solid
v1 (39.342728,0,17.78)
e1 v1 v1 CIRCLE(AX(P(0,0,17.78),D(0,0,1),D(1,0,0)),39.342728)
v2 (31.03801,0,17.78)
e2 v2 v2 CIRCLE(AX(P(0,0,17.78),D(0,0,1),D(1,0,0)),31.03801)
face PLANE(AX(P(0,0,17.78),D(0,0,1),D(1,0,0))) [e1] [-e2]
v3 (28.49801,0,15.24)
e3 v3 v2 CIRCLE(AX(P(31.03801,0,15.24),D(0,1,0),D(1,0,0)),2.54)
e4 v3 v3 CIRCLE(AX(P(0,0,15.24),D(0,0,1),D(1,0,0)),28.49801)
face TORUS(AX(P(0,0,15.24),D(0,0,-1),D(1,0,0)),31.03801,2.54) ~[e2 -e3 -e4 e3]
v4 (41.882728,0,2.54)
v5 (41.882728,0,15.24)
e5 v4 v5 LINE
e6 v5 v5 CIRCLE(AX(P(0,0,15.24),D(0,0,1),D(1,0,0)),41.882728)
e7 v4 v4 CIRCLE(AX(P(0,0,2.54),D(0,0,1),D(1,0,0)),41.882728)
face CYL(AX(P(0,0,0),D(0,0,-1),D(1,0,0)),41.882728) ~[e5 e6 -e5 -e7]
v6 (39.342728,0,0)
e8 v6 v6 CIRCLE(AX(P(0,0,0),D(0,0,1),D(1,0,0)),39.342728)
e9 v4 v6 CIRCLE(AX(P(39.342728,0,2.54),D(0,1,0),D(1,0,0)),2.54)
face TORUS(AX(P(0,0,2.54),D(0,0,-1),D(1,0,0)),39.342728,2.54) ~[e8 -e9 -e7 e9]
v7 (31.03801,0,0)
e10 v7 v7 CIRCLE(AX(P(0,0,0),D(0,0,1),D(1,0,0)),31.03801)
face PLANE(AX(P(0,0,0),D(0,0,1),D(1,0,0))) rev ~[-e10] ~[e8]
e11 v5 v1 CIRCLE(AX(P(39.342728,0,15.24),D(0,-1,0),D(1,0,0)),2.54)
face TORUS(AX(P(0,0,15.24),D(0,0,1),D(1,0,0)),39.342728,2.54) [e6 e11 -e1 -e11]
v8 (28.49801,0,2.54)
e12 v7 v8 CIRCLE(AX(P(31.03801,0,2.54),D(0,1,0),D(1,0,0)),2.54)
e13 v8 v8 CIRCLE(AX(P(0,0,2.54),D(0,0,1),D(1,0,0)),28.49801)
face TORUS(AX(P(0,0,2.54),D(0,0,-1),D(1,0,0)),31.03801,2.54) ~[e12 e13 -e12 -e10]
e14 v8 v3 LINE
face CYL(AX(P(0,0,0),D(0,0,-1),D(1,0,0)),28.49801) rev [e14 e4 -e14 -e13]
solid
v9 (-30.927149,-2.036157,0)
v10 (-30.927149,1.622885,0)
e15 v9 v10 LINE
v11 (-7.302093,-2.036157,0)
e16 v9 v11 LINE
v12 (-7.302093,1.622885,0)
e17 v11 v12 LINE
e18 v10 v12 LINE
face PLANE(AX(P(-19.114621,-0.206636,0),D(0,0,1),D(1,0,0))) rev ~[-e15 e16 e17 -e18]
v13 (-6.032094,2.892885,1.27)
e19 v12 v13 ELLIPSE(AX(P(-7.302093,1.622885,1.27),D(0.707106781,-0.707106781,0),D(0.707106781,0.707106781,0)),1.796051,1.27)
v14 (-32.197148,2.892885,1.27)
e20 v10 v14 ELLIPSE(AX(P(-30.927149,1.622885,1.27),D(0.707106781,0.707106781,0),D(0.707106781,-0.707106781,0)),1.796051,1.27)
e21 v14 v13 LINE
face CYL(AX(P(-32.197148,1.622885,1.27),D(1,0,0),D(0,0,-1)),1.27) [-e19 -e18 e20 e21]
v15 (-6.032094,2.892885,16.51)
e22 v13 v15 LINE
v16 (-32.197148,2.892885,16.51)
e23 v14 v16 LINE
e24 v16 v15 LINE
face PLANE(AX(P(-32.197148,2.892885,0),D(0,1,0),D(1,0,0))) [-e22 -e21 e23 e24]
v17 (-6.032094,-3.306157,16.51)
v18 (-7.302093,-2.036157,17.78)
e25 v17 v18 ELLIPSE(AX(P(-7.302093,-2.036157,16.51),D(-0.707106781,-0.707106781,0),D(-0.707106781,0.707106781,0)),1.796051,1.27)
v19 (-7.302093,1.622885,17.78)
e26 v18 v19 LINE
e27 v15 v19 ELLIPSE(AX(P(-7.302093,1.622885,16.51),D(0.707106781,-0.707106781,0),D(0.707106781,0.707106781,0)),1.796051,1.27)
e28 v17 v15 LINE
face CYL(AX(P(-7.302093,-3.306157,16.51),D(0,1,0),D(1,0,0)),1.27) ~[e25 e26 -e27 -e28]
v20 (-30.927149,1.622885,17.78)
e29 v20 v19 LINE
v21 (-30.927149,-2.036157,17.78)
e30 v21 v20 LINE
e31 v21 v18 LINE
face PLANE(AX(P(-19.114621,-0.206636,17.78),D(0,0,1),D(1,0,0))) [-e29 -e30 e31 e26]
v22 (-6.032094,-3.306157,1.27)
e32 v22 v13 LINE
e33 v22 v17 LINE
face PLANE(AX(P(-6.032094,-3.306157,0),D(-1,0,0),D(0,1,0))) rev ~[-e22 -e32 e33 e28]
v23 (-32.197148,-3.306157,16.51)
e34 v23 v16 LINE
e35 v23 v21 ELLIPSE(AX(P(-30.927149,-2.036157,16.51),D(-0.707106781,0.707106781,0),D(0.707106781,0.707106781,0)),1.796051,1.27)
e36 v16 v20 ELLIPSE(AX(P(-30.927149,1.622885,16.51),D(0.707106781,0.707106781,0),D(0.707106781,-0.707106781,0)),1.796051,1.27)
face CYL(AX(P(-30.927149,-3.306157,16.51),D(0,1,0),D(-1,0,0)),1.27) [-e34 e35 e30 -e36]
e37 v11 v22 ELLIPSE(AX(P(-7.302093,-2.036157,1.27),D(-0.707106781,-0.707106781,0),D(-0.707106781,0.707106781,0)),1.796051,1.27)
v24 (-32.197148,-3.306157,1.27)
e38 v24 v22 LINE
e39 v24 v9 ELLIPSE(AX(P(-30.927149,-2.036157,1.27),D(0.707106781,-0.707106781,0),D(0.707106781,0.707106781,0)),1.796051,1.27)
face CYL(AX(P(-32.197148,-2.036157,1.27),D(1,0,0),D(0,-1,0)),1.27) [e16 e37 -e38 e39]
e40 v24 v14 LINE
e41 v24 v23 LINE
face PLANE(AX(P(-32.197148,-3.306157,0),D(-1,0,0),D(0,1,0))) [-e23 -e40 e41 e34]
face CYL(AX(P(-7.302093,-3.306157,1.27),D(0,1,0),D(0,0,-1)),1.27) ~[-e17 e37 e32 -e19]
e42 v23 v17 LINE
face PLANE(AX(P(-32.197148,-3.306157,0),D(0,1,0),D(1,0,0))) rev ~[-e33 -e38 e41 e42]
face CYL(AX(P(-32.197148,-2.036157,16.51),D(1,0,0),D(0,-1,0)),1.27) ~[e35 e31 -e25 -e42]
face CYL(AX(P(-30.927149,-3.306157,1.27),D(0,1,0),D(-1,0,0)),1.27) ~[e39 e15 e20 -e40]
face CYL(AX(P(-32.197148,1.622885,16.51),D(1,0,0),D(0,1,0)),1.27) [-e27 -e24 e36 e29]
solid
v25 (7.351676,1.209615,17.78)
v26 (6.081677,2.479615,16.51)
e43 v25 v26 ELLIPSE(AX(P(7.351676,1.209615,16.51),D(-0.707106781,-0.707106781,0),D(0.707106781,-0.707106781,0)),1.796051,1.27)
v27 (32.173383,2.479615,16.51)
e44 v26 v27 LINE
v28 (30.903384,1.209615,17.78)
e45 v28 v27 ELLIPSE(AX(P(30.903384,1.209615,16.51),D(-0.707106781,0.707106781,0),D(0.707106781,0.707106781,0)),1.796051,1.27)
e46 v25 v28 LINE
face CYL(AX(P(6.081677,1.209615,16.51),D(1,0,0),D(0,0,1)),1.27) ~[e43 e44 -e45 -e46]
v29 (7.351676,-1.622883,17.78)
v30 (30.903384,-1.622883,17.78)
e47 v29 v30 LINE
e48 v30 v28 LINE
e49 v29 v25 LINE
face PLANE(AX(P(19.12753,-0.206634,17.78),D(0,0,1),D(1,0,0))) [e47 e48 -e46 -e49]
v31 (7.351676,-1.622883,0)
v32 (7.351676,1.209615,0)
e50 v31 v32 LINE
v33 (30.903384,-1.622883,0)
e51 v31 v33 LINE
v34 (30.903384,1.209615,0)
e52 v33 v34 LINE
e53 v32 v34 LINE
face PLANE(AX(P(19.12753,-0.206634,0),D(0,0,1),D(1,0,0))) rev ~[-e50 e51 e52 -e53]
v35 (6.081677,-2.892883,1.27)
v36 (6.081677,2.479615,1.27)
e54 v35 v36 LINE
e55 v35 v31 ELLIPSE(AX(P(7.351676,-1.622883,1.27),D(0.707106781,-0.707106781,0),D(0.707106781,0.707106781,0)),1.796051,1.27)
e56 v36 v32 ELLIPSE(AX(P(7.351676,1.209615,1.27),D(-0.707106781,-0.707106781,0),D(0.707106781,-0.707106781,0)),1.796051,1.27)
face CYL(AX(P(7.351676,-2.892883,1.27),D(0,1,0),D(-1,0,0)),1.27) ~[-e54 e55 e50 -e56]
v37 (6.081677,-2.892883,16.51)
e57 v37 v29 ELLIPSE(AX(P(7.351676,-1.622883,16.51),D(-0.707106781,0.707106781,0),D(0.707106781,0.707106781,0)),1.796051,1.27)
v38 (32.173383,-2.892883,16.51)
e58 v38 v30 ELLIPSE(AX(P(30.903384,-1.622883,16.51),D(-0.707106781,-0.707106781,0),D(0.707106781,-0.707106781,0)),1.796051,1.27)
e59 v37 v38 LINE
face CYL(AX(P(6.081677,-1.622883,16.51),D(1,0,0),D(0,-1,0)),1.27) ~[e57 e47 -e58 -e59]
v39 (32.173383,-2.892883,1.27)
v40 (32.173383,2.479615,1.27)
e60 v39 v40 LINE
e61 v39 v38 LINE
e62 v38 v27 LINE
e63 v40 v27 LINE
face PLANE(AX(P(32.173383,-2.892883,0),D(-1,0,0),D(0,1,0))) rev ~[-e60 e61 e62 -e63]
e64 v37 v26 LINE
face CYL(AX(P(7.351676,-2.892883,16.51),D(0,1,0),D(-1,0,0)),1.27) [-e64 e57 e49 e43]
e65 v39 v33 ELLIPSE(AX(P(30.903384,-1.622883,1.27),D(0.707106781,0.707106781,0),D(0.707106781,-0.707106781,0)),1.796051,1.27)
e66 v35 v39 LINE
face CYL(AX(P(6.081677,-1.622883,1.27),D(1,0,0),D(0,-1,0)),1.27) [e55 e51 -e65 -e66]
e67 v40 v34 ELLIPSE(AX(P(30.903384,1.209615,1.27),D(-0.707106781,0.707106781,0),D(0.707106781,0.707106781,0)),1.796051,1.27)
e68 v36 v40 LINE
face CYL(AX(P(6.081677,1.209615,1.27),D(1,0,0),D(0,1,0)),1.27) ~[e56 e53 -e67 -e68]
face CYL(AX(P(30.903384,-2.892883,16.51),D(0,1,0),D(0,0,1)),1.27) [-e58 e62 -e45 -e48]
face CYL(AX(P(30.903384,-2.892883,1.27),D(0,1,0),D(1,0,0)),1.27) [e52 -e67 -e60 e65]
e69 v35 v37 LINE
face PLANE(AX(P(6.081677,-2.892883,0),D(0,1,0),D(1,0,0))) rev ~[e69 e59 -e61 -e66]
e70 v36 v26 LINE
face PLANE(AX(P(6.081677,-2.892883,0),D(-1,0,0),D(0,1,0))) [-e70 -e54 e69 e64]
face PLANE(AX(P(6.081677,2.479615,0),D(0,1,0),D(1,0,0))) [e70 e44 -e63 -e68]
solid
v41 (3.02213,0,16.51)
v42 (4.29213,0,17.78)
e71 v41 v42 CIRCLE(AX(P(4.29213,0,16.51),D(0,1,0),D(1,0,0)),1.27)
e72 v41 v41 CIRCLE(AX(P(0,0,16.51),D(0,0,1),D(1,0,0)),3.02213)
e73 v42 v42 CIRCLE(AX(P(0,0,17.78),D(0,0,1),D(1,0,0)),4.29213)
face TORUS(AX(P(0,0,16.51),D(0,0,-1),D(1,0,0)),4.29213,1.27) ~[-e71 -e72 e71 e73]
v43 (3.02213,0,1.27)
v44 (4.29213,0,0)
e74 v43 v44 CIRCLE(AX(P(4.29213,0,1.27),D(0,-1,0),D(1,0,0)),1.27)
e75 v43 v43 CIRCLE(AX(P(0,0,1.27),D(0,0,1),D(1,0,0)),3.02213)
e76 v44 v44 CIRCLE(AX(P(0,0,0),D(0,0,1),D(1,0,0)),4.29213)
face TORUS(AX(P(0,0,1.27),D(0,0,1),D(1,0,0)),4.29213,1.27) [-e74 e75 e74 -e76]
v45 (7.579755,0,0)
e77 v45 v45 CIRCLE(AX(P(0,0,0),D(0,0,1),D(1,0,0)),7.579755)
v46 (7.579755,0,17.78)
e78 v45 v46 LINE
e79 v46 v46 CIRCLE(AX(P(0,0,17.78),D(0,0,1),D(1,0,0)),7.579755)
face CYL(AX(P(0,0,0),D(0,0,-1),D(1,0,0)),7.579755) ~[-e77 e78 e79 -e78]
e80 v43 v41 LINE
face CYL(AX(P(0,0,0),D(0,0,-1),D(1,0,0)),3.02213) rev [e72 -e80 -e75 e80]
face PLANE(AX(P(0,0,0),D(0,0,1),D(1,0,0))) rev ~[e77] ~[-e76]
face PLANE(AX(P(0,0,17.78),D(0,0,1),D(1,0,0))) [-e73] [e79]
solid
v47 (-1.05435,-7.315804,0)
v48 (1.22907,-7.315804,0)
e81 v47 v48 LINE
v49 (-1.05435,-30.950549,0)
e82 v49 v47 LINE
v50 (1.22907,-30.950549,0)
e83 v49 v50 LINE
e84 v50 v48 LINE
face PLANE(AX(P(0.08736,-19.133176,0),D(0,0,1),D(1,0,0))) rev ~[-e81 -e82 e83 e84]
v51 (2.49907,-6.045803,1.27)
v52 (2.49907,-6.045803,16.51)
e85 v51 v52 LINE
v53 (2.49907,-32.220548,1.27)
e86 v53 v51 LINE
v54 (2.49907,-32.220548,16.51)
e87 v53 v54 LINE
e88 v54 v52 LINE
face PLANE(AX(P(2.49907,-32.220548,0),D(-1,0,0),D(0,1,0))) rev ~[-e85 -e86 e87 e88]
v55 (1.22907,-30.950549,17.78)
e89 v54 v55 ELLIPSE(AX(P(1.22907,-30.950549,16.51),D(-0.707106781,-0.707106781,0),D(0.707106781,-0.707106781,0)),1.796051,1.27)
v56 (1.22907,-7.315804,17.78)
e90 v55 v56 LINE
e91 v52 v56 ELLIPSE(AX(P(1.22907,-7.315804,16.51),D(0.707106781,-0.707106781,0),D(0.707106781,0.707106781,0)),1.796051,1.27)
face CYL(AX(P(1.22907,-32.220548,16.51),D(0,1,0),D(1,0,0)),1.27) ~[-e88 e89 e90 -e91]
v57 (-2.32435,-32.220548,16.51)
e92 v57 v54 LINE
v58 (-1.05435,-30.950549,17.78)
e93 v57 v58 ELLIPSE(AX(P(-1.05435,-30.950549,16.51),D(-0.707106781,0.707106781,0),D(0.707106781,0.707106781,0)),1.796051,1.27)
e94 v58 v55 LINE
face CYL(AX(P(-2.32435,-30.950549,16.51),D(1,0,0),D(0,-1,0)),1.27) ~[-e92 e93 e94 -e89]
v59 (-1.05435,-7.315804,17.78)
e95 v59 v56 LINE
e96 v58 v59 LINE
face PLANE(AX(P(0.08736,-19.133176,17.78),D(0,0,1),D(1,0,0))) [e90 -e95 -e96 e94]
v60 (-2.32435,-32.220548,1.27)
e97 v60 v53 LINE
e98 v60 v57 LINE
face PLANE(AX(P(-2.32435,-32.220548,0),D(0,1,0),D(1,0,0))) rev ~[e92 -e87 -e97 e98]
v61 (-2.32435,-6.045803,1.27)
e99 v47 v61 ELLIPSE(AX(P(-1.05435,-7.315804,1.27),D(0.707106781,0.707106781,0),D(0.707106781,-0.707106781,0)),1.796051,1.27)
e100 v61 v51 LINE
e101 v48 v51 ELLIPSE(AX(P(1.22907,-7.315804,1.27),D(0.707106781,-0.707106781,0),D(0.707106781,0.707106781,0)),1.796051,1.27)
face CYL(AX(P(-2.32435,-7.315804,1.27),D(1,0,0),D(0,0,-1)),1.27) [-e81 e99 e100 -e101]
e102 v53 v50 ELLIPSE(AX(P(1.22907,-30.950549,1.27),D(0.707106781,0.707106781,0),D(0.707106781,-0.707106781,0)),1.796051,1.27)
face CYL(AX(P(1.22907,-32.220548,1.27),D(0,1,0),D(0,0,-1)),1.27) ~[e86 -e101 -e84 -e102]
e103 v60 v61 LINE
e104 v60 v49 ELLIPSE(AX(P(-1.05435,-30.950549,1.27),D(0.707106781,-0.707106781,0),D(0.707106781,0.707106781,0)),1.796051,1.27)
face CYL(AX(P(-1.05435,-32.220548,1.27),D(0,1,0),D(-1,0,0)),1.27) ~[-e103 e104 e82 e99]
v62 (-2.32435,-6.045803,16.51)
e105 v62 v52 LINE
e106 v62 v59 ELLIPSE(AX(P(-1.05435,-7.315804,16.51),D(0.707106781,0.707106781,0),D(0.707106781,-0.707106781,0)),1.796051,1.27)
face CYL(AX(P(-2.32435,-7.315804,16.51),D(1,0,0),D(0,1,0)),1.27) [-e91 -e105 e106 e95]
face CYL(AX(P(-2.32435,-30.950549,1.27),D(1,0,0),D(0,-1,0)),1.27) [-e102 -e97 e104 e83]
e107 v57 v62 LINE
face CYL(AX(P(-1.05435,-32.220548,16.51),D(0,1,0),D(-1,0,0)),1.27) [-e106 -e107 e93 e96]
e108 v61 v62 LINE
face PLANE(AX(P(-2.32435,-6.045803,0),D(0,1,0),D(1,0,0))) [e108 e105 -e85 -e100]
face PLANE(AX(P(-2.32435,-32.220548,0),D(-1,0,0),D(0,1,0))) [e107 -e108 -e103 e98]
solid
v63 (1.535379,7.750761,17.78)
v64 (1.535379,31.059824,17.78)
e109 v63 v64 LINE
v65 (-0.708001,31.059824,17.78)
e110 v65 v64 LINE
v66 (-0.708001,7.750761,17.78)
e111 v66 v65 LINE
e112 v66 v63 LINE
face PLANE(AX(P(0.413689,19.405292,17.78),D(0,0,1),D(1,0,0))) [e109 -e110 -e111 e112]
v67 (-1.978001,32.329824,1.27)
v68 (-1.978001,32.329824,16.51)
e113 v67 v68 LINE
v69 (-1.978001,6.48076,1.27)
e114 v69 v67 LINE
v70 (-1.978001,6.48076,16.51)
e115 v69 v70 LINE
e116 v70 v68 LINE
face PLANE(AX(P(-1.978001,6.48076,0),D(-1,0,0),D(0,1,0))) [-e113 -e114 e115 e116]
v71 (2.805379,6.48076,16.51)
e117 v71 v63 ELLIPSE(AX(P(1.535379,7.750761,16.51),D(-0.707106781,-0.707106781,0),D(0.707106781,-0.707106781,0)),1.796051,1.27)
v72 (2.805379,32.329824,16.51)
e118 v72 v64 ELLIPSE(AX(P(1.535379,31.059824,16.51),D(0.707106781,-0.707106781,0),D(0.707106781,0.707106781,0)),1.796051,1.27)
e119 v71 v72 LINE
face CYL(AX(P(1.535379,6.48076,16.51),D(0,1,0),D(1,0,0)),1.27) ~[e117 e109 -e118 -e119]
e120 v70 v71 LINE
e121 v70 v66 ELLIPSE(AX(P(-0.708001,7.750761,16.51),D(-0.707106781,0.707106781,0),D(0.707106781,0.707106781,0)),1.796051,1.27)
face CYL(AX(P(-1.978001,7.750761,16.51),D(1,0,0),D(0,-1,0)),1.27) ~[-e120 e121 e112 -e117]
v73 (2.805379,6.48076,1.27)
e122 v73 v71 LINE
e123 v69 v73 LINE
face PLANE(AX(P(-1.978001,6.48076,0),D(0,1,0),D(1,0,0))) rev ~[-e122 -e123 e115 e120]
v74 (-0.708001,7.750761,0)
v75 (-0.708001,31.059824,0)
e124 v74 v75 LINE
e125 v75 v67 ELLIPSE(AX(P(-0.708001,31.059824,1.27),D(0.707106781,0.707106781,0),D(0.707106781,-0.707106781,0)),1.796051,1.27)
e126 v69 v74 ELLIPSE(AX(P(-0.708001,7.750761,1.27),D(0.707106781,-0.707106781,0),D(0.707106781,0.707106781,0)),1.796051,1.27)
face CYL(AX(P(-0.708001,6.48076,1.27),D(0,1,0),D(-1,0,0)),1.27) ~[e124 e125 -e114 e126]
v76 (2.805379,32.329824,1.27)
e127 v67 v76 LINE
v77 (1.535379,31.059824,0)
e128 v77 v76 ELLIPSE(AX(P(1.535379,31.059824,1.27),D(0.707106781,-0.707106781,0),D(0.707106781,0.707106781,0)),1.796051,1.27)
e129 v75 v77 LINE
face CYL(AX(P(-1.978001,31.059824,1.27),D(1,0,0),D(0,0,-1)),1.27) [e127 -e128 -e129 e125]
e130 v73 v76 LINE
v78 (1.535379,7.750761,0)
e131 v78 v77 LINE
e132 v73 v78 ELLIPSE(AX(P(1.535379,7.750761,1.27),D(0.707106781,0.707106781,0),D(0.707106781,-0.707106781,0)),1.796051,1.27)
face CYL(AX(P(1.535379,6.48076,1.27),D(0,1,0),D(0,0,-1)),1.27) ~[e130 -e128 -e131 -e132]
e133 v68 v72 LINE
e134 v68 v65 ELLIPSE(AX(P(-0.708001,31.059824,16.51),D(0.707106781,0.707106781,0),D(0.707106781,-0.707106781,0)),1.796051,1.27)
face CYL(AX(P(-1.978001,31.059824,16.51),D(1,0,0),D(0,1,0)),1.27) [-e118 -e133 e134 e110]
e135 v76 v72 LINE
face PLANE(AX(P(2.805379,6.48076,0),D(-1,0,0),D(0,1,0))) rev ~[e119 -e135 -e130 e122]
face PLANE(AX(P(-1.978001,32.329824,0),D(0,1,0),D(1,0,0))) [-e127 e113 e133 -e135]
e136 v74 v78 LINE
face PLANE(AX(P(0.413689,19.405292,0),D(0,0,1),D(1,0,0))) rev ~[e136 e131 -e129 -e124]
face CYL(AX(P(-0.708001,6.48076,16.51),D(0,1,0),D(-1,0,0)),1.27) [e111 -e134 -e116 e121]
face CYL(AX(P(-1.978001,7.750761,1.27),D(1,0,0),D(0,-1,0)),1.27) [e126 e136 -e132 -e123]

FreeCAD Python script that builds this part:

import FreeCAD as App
import Part
import Sketcher

V = App.Vector
Q = App.Units.Quantity


def edges_at(feature, points):
    """Names of the edges that pass closest to the given points."""
    edges = feature.Shape.Edges
    near = lambda p: min(range(len(edges)), key=lambda i: edges[i].distToShape(Part.Vertex(*p))[0])
    return sorted({f"Edge{near(p) + 1}" for p in points})


def add_polygon(sketch, points):
    """Adds a closed chain of lines whose ends are joined by coincident constraints."""
    first, n = sketch.GeometryCount, len(points)
    for a, b in zip(points, points[1:] + points[:1]):
        sketch.addGeometry(Part.LineSegment(App.Vector(*a, 0), App.Vector(*b, 0)), False)
    for i in range(n):
        sketch.addConstraint(Sketcher.Constraint("Coincident", first + i, 2, first + (i + 1) % n, 1))

doc = App.newDocument("Part")
body = doc.addObject("PartDesign::Body", "Body")

sketch1 = body.newObject("Sketcher::SketchObject", "Sketch")
sketch1.AttachmentSupport = (doc.getObject("XY_Plane"), [""])
sketch1.MapMode = "FlatFace"
sketch1.addGeometry([
    Part.Circle(V(0, 0, 0), V(0, 0, 1), 42),
    Part.Circle(V(0, 0, 0), V(0, 0, 1), 28),
], False)
sketch1.addConstraint([
    Sketcher.Constraint("Coincident", 0, 3, -1, 1),
    Sketcher.Constraint("Coincident", 1, 3, -1, 1),
    Sketcher.Constraint("Diameter", 1, 56.99602),
    Sketcher.Constraint("Diameter", 0, 83.765456),
])
pad1 = body.newObject("PartDesign::Pad", "Pad")
pad1.Profile = sketch1
pad1.Length = Q("0.7 in")
doc.recompute()

fillet = body.newObject("PartDesign::Fillet", "Fillet")
fillet.Base = (pad1, edges_at(pad1, [(-41.883, 0, 17.78), (-28.498, 0, 17.78)]))
fillet.Radius = Q("0.1 in")
doc.recompute()

fillet2 = body.newObject("PartDesign::Fillet", "Fillet001")
fillet2.Base = (fillet, edges_at(fillet, [(-41.883, 0, 0), (-28.498, 0, 0)]))
fillet2.Radius = Q("0.1 in")
body2 = doc.addObject("PartDesign::Body", "Body001")

sketch2 = body2.newObject("Sketcher::SketchObject", "Sketch001")
sketch2.AttachmentSupport = (doc.getObject("XY_Plane001"), [""])
sketch2.MapMode = "FlatFace"
sketch2.addGeometry([
    Part.Circle(V(0, 0, 0), V(0, 0, 1), 7.6),
    Part.Circle(V(0, 0, 0), V(0, 0, 1), 3),
], False)
sketch2.addConstraint([
    Sketcher.Constraint("Coincident", 0, 3, -1, 1),
    Sketcher.Constraint("Coincident", 1, 3, -1, 1),
    Sketcher.Constraint("Diameter", 0, 15.15951),
    Sketcher.Constraint("Diameter", 1, 6.04426),
])
pad2 = body2.newObject("PartDesign::Pad", "Pad001")
pad2.Profile = sketch2
pad2.Length = Q("0.7 in")
doc.recompute()

fillet3 = body2.newObject("PartDesign::Fillet", "Fillet002")
fillet3.Base = (pad2, edges_at(pad2, [(-3.022, 0, 17.78)]))
fillet3.Radius = Q("0.05 in")
doc.recompute()

fillet4 = body2.newObject("PartDesign::Fillet", "Fillet003")
fillet4.Base = (fillet3, edges_at(fillet3, [(-3.022, 0, 0)]))
fillet4.Radius = Q("0.05 in")
body3 = doc.addObject("PartDesign::Body", "Body002")

sketch3 = body3.newObject("Sketcher::SketchObject", "Sketch002")
sketch3.AttachmentSupport = (doc.getObject("XY_Plane002"), [""])
sketch3.MapMode = "FlatFace"
add_polygon(sketch3, [(-2.3, -6), (-2.3, -32.2), (2.5, -32.2), (2.5, -6)])
sketch3.addConstraint([
    Sketcher.Constraint("Vertical", 0),
    Sketcher.Constraint("Horizontal", 1),
    Sketcher.Constraint("Vertical", 2),
    Sketcher.Constraint("Horizontal", 3),
    Sketcher.Constraint("DistanceX", 1, 1, 1, 2, 4.82342),
    Sketcher.Constraint("DistanceY", 0, 2, 0, 1, 26.174745),
    Sketcher.Constraint("DistanceX", 0, 2, -1, 1, 2.32435),
    Sketcher.Constraint("DistanceY", 0, 2, -1, 1, 32.220548),
])
pad3 = body3.newObject("PartDesign::Pad", "Pad002")
pad3.Profile = sketch3
pad3.Length = Q("0.7 in")
doc.recompute()

fillet5 = body3.newObject("PartDesign::Fillet", "Fillet004")
fillet5.Base = (pad3, edges_at(pad3, [
    (0.087, -32.221, 17.78),
    (2.499, -19.133, 17.78),
    (0.087, -6.046, 17.78),
    (-2.324, -19.133, 17.78),
]))
fillet5.Radius = Q("0.05 in")
doc.recompute()

fillet6 = body3.newObject("PartDesign::Fillet", "Fillet005")
fillet6.Base = (fillet5, edges_at(fillet5, [
    (0.087, -32.221, 0),
    (2.499, -19.133, 0),
    (0.087, -6.046, 0),
    (-2.324, -19.133, 0),
]))
fillet6.Radius = Q("0.05 in")
body4 = doc.addObject("PartDesign::Body", "Body003")

sketch4 = body4.newObject("Sketcher::SketchObject", "Sketch003")
sketch4.AttachmentSupport = (doc.getObject("XY_Plane003"), [""])
sketch4.MapMode = "FlatFace"
add_polygon(sketch4, [(-2, 32.3), (-2, 6.5), (2.8, 6.5), (2.8, 32.3)])
sketch4.addConstraint([
    Sketcher.Constraint("Vertical", 0),
    Sketcher.Constraint("Horizontal", 1),
    Sketcher.Constraint("Vertical", 2),
    Sketcher.Constraint("Horizontal", 3),
    Sketcher.Constraint("DistanceX", 1, 1, 1, 2, 4.78338),
    Sketcher.Constraint("DistanceX", 0, 2, -1, 1, 1.978001),
    Sketcher.Constraint("DistanceY", 0, 2, 0, 1, 25.849063),
    Sketcher.Constraint("DistanceY", -1, 1, 0, 2, 6.48076),
])
pad4 = body4.newObject("PartDesign::Pad", "Pad003")
pad4.Profile = sketch4
pad4.Length = Q("0.7 in")
doc.recompute()

fillet7 = body4.newObject("PartDesign::Fillet", "Fillet006")
fillet7.Base = (pad4, edges_at(pad4, [
    (0.414, 6.481, 17.78),
    (2.805, 19.405, 17.78),
    (0.414, 32.33, 17.78),
    (-1.978, 19.405, 17.78),
]))
fillet7.Radius = Q("0.05 in")
doc.recompute()

fillet8 = body4.newObject("PartDesign::Fillet", "Fillet007")
fillet8.Base = (fillet7, edges_at(fillet7, [
    (0.414, 6.481, 0),
    (2.805, 19.405, 0),
    (0.414, 32.33, 0),
    (-1.978, 19.405, 0),
]))
fillet8.Radius = Q("0.05 in")
body5 = doc.addObject("PartDesign::Body", "Body004")

sketch5 = body5.newObject("Sketcher::SketchObject", "Sketch004")
sketch5.AttachmentSupport = (doc.getObject("XY_Plane004"), [""])
sketch5.MapMode = "FlatFace"
add_polygon(sketch5, [(-32, 3), (-32, -3), (-6, -3), (-6, 3)])
sketch5.addConstraint([
    Sketcher.Constraint("Vertical", 0),
    Sketcher.Constraint("Horizontal", 1),
    Sketcher.Constraint("Vertical", 2),
    Sketcher.Constraint("Horizontal", 3),
    Sketcher.Constraint("DistanceY", 0, 2, 0, 1, 6.199041),
    Sketcher.Constraint("DistanceX", 1, 1, 1, 2, 26.165055),
    Sketcher.Constraint("DistanceX", 0, 2, -1, 1, 32.197148),
    Sketcher.Constraint("DistanceY", 0, 2, -1, 1, 3.306157),
])
pad5 = body5.newObject("PartDesign::Pad", "Pad004")
pad5.Profile = sketch5
pad5.Length = Q("0.7 in")
doc.recompute()

fillet9 = body5.newObject("PartDesign::Fillet", "Fillet008")
fillet9.Base = (pad5, edges_at(pad5, [
    (-6.032, -0.207, 17.78),
    (-19.115, 2.893, 17.78),
    (-32.197, -0.207, 17.78),
    (-19.115, -3.306, 17.78),
]))
fillet9.Radius = Q("0.05 in")
doc.recompute()

fillet10 = body5.newObject("PartDesign::Fillet", "Fillet009")
fillet10.Base = (fillet9, edges_at(fillet9, [
    (-6.032, -0.207, 0),
    (-19.115, 2.893, 0),
    (-32.197, -0.207, 0),
    (-19.115, -3.306, 0),
]))
fillet10.Radius = Q("0.05 in")
body6 = doc.addObject("PartDesign::Body", "Body005")

sketch6 = body6.newObject("Sketcher::SketchObject", "Sketch005")
sketch6.AttachmentSupport = (doc.getObject("XY_Plane005"), [""])
sketch6.MapMode = "FlatFace"
add_polygon(sketch6, [(6, 2), (6, -3), (32, -3), (32, 2)])
sketch6.addConstraint([
    Sketcher.Constraint("Vertical", 0),
    Sketcher.Constraint("Horizontal", 1),
    Sketcher.Constraint("Vertical", 2),
    Sketcher.Constraint("Horizontal", 3),
    Sketcher.Constraint("DistanceY", 0, 2, 0, 1, 5.372498),
    Sketcher.Constraint("DistanceX", 1, 1, 1, 2, 26.091707),
    Sketcher.Constraint("DistanceX", -1, 1, 0, 2, 6.081677),
    Sketcher.Constraint("DistanceY", 0, 2, -1, 1, 2.892883),
])
pad6 = body6.newObject("PartDesign::Pad", "Pad005")
pad6.Profile = sketch6
pad6.Length = Q("0.7 in")
doc.recompute()

fillet11 = body6.newObject("PartDesign::Fillet", "Fillet010")
fillet11.Base = (pad6, edges_at(pad6, [
    (19.128, 2.48, 0),
    (6.082, -0.207, 0),
    (19.128, -2.893, 0),
    (32.173, -0.207, 0),
]))
fillet11.Radius = Q("0.05 in")
doc.recompute()

fillet12 = body6.newObject("PartDesign::Fillet", "Fillet011")
fillet12.Base = (fillet11, edges_at(fillet11, [
    (19.128, 2.48, 17.78),
    (6.082, -0.207, 17.78),
    (19.128, -2.893, 17.78),
    (32.173, -0.207, 17.78),
]))
fillet12.Radius = Q("0.05 in")

doc.recompute()
